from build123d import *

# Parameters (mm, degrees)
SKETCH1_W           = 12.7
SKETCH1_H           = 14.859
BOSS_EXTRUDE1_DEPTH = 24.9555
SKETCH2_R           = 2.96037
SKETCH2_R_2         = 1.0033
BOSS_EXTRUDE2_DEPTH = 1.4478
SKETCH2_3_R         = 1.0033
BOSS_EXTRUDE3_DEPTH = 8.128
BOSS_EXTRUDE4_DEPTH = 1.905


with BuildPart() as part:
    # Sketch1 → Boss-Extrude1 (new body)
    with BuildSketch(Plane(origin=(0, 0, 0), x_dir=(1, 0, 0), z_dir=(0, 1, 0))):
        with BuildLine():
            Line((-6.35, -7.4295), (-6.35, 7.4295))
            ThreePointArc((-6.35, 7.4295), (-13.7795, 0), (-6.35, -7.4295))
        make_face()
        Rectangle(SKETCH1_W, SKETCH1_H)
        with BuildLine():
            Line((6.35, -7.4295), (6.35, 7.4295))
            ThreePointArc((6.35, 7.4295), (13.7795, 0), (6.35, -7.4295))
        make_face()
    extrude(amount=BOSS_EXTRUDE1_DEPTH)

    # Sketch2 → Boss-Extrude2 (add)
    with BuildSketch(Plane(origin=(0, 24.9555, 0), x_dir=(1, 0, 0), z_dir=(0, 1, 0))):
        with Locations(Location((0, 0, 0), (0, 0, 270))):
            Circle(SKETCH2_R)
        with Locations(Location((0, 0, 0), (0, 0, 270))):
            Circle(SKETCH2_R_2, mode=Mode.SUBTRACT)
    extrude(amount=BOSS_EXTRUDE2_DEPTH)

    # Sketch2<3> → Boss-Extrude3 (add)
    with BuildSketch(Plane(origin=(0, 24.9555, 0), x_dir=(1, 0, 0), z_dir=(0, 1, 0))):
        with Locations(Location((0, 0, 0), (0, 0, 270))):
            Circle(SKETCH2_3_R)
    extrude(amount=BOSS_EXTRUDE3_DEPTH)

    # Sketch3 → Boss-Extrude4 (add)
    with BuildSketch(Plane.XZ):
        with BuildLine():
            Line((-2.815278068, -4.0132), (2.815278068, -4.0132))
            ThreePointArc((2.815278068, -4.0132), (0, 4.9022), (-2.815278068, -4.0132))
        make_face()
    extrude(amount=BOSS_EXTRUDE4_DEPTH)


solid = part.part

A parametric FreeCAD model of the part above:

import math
import FreeCAD as App
import Part
import Sketcher
Q = App.Units.Quantity

doc = App.newDocument("Part")
body = doc.addObject("PartDesign::Body", "Body")

# Sketch on XZ plane
sketch1 = doc.addObject("Sketcher::SketchObject", "Sketch")
body.addObject(sketch1)
sketch1.AttachmentSupport = (doc.XZ_Plane, [""])
sketch1.MapMode = "FlatFace"
sketch1.addGeometry([
    Part.ArcOfCircle(Part.Circle(App.Vector(-6.35, 0, 0), App.Vector(0, 0, 1), 7.4295), math.radians(90), math.radians(270)),
    Part.LineSegment(App.Vector(-6.35, 7.4295, 0), App.Vector(6.35, 7.4295, 0)),
    Part.ArcOfCircle(Part.Circle(App.Vector(6.35, 0, 0), App.Vector(0, 0, 1), 7.4295), math.radians(-90), math.radians(90)),
    Part.LineSegment(App.Vector(6.35, -7.4295, 0), App.Vector(-6.35, -7.4295, 0)),
], False)
sketch1.addConstraint([
    Sketcher.Constraint("Tangent", 0, 1, 1, 1),
    Sketcher.Constraint("Tangent", 1, 2, 2, 2),
    Sketcher.Constraint("Tangent", 2, 1, 3, 1),
    Sketcher.Constraint("Tangent", 3, 2, 0, 2),
    Sketcher.Constraint("Horizontal", 1),
    Sketcher.Constraint("Horizontal", 3),
    Sketcher.Constraint("Symmetric", 0, 3, 2, 3, -1, 1),
    Sketcher.Constraint("DistanceX", 1, 1, 1, 2, Q("0.5 in")),
    Sketcher.Constraint("Radius", 0, Q("0.2925 in")),
])
pad1 = doc.addObject("PartDesign::Pad", "Pad")
body.addObject(pad1)
pad1.Profile = sketch1
pad1.Length = Q("0.9825 in")
pad1.Reversed = True

# Sketch on XZ plane
sketch2 = doc.addObject("Sketcher::SketchObject", "Sketch001")
body.addObject(sketch2)
sketch2.AttachmentSupport = (doc.XZ_Plane, [""])
sketch2.MapMode = "FlatFace"
sketch2.AttachmentOffset = App.Placement(App.Vector(0, 0, -0.9825 * 25.4), App.Rotation())
sketch2.addGeometry([
    Part.Circle(App.Vector(0, 0, 0), App.Vector(0, 0, 1), 2.96037),
    Part.Circle(App.Vector(0, 0, 0), App.Vector(0, 0, 1), 1.0033),
], False)
sketch2.addConstraint([
    Sketcher.Constraint("Coincident", 0, 3, -1, 1),
    Sketcher.Constraint("Coincident", 1, 3, -1, 1),
    Sketcher.Constraint("Diameter", 1, Q("0.079 in")),
    Sketcher.Constraint("Diameter", 0, Q("0.2331 in")),
])
pad2 = doc.addObject("PartDesign::Pad", "Pad001")
body.addObject(pad2)
pad2.Profile = sketch2
pad2.Length = Q("0.057 in")
pad2.Reversed = True

# Sketch on XZ plane
sketch3 = doc.addObject("Sketcher::SketchObject", "Sketch002")
body.addObject(sketch3)
sketch3.AttachmentSupport = (doc.XZ_Plane, [""])
sketch3.MapMode = "FlatFace"
sketch3.AttachmentOffset = App.Placement(App.Vector(0, 0, -0.9825 * 25.4), App.Rotation())
sketch3.addGeometry(Part.Circle(App.Vector(0, 0, 0), App.Vector(0, 0, 1), 1.0033), False)
sketch3.addConstraint([
    Sketcher.Constraint("Coincident", 0, 3, -1, 1),
    Sketcher.Constraint("Diameter", 0, Q("0.079 in")),
])
pad3 = doc.addObject("PartDesign::Pad", "Pad002")
body.addObject(pad3)
pad3.Profile = sketch3
pad3.Length = Q("0.32 in")
pad3.Reversed = True

# Sketch on XZ plane
sketch4 = doc.addObject("Sketcher::SketchObject", "Sketch003")
body.addObject(sketch4)
sketch4.AttachmentSupport = (doc.XZ_Plane, [""])
sketch4.MapMode = "FlatFace"
sketch4.addGeometry([
    Part.LineSegment(App.Vector(-2.815278, -4.0132, 0), App.Vector(2.815278, -4.0132, 0)),
    Part.ArcOfCircle(Part.Circle(App.Vector(0, 0, 0), App.Vector(0, 0, 1), 4.9022), math.radians(-54.950165), math.radians(234.950165)),
], False)
sketch4.addConstraint([
    Sketcher.Constraint("Coincident", 0, 1, 1, 2),
    Sketcher.Constraint("Coincident", 1, 1, 0, 2),
    Sketcher.Constraint("Horizontal", 0),
    Sketcher.Constraint("Coincident", 1, 3, -1, 1),
    Sketcher.Constraint("Radius", 1, Q("0.193 in")),
    Sketcher.Constraint("DistanceY", 0, 1, -1, 1, Q("0.158 in")),
])
pad4 = doc.addObject("PartDesign::Pad", "Pad003")
body.addObject(pad4)
pad4.Profile = sketch4
pad4.Length = Q("0.075 in")

doc.recompute()
